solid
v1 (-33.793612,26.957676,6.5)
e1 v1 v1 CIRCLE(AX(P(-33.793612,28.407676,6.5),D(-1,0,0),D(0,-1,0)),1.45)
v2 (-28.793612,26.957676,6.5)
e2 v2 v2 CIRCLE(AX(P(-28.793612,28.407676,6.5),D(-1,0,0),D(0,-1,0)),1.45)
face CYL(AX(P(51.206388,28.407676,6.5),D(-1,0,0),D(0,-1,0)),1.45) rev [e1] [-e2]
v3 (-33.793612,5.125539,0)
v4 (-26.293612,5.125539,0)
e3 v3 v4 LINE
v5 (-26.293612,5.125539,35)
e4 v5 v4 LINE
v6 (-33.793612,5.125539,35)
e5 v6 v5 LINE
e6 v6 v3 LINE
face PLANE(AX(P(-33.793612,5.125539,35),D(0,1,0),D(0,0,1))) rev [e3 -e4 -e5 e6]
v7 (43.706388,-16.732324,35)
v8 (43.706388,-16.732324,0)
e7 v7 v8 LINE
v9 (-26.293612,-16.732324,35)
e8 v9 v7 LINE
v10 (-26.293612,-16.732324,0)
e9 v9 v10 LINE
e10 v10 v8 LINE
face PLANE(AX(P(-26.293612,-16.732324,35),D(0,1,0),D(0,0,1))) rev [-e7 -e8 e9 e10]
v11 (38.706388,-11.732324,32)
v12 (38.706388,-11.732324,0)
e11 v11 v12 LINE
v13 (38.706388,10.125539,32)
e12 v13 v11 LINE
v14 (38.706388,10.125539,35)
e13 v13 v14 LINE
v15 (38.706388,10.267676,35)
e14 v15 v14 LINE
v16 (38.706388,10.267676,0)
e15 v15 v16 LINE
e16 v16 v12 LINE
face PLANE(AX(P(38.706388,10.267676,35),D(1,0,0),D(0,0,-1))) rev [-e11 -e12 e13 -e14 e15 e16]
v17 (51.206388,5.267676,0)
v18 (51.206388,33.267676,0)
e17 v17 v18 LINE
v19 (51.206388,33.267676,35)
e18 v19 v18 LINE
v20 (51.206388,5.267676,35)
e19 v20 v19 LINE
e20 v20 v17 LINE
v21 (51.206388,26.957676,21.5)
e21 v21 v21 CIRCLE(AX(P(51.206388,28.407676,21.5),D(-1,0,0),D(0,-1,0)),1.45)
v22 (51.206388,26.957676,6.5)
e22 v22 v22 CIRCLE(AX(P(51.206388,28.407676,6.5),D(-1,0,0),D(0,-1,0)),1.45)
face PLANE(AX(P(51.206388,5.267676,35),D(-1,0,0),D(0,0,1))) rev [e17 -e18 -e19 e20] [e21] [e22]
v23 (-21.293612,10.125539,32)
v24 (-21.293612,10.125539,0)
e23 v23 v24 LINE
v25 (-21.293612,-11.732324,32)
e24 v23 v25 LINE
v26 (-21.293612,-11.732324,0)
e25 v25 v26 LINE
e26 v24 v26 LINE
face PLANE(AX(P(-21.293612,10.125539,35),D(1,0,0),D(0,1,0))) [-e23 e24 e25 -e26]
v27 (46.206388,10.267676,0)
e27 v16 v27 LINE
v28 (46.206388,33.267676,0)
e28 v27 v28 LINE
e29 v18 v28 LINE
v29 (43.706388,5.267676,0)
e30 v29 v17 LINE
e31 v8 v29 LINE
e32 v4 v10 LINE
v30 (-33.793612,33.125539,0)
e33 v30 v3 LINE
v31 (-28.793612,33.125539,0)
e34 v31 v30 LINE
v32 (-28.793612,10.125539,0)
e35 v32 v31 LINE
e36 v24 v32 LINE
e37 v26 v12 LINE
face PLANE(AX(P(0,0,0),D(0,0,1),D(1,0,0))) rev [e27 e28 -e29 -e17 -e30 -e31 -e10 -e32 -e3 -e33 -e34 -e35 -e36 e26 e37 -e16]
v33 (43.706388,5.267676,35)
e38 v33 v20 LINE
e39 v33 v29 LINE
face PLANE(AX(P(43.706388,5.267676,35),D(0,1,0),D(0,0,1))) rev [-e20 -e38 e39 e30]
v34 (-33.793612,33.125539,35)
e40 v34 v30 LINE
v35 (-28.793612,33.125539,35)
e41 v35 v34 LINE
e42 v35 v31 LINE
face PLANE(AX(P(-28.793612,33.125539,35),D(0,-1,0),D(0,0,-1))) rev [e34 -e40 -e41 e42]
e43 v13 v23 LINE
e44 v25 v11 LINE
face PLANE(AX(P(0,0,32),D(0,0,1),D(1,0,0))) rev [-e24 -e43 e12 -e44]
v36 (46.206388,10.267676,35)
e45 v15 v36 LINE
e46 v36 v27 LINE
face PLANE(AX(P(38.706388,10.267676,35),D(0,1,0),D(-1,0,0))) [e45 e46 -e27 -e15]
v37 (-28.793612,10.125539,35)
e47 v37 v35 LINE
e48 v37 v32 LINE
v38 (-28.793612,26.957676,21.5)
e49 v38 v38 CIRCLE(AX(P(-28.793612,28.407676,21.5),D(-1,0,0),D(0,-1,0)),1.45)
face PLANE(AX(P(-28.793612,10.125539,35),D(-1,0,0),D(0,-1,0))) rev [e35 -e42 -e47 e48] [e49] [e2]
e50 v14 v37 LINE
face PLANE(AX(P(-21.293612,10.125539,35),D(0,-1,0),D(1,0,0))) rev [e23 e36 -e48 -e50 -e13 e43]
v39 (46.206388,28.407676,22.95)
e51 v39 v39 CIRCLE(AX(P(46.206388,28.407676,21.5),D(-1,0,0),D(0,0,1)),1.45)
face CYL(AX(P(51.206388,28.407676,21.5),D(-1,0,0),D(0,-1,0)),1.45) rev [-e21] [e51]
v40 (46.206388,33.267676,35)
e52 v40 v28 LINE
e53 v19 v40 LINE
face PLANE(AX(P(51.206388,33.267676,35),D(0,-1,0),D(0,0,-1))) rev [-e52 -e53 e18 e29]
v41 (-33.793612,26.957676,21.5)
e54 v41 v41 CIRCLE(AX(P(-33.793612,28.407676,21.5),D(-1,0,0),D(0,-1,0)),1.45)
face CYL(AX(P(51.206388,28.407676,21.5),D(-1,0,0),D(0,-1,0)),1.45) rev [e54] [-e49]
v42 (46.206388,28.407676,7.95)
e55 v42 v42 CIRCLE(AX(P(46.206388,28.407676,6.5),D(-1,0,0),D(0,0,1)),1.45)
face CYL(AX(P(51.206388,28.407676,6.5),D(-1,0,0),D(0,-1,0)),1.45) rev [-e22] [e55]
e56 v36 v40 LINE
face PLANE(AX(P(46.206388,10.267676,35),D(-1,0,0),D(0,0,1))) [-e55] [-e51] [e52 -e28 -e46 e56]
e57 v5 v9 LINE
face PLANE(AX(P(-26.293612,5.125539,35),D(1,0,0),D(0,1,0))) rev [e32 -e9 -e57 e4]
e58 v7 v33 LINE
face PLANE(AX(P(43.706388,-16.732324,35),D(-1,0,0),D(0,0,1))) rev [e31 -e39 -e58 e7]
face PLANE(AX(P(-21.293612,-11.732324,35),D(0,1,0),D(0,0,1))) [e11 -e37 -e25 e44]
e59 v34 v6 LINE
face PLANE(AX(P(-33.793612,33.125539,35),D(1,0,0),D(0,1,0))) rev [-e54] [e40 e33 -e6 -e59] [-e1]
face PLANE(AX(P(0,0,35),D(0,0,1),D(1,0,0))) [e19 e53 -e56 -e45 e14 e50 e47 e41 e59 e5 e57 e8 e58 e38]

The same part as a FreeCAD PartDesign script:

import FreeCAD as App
import Part
import Sketcher

V = App.Vector
Q = App.Units.Quantity

doc = App.newDocument("Part")
body = doc.addObject("PartDesign::Body", "Body")

sketch1 = body.newObject("Sketcher::SketchObject", "Sketch")
sketch1.AttachmentSupport = (doc.getObject("XY_Plane"), [""])
sketch1.MapMode = "FlatFace"
sketch1.addGeometry([
    Part.LineSegment(V(-21.293612, 10.125539, 0), V(-28.793612, 10.125539, 0)),
    Part.LineSegment(V(-28.793612, 10.125539, 0), V(-28.793612, 33.125539, 0)),
    Part.LineSegment(V(-28.793612, 33.125539, 0), V(-33.793612, 33.125539, 0)),
    Part.LineSegment(V(-33.793612, 33.125539, 0), V(-33.793612, 5.125539, 0)),
    Part.LineSegment(V(-33.793612, 5.125539, 0), V(-26.293612, 5.125539, 0)),
    Part.LineSegment(V(-26.293612, 5.125539, 0), V(-26.293612, -16.732324, 0)),
    Part.LineSegment(V(-26.293612, -16.732324, 0), V(43.706388, -16.732324, 0)),
    Part.LineSegment(V(43.706388, -16.732324, 0), V(43.706388, 5.267676, 0)),
    Part.LineSegment(V(43.706388, 5.267676, 0), V(51.206388, 5.267676, 0)),
    Part.LineSegment(V(51.206388, 5.267676, 0), V(51.206388, 33.267676, 0)),
    Part.LineSegment(V(51.206388, 33.267676, 0), V(46.206388, 33.267676, 0)),
    Part.LineSegment(V(46.206388, 33.267676, 0), V(46.206388, 10.267676, 0)),
    Part.LineSegment(V(46.206388, 10.267676, 0), V(38.706388, 10.267676, 0)),
    Part.LineSegment(V(38.706388, 10.267676, 0), V(38.706388, -11.732324, 0)),
    Part.LineSegment(V(38.706388, -11.732324, 0), V(-21.293612, -11.732324, 0)),
    Part.LineSegment(V(-21.293612, -11.732324, 0), V(-21.293612, 10.125539, 0)),
], False)
sketch1.addConstraint([
    Sketcher.Constraint("Coincident", 0, 2, 1, 1),
    Sketcher.Constraint("Coincident", 1, 2, 2, 1),
    Sketcher.Constraint("Coincident", 2, 2, 3, 1),
    Sketcher.Constraint("Coincident", 3, 2, 4, 1),
    Sketcher.Constraint("Coincident", 4, 2, 5, 1),
    Sketcher.Constraint("Coincident", 5, 2, 6, 1),
    Sketcher.Constraint("Coincident", 6, 2, 7, 1),
    Sketcher.Constraint("Coincident", 7, 2, 8, 1),
    Sketcher.Constraint("Coincident", 8, 2, 9, 1),
    Sketcher.Constraint("Coincident", 9, 2, 10, 1),
    Sketcher.Constraint("Coincident", 10, 2, 11, 1),
    Sketcher.Constraint("Coincident", 11, 2, 12, 1),
    Sketcher.Constraint("Coincident", 12, 2, 13, 1),
    Sketcher.Constraint("Coincident", 13, 2, 14, 1),
    Sketcher.Constraint("Coincident", 14, 2, 15, 1),
    Sketcher.Constraint("Coincident", 15, 2, 0, 1),
    Sketcher.Constraint("Horizontal", 0),
    Sketcher.Constraint("Vertical", 1),
    Sketcher.Constraint("Horizontal", 2),
    Sketcher.Constraint("Vertical", 3),
    Sketcher.Constraint("Horizontal", 4),
    Sketcher.Constraint("Vertical", 5),
    Sketcher.Constraint("Horizontal", 6),
    Sketcher.Constraint("Vertical", 7),
    Sketcher.Constraint("Horizontal", 8),
    Sketcher.Constraint("Vertical", 9),
    Sketcher.Constraint("Horizontal", 10),
    Sketcher.Constraint("Vertical", 11),
    Sketcher.Constraint("Horizontal", 12),
    Sketcher.Constraint("Vertical", 13),
    Sketcher.Constraint("Horizontal", 14),
    Sketcher.Constraint("Vertical", 15),
    Sketcher.Constraint("Equal", 0, 4),
    Sketcher.Constraint("Equal", 4, 8),
    Sketcher.Constraint("Equal", 2, 10),
    Sketcher.Constraint("Equal", 8, 12),
    Sketcher.Constraint("Equal", 3, 9),
    Sketcher.Constraint("Equal", 1, 11),
    Sketcher.Constraint("Equal", 7, 13),
    Sketcher.Constraint("DistanceX", 2, 2, 2, 1, Q("5 mm")),
    Sketcher.Constraint("DistanceX", 6, 1, 6, 2, Q("70 mm")),
    Sketcher.Constraint("DistanceY", 1, 1, 1, 2, Q("23 mm")),
    Sketcher.Constraint("DistanceY", 3, 2, 3, 1, Q("28 mm")),
    Sketcher.Constraint("DistanceY", 7, 1, 7, 2, Q("22 mm")),
    Sketcher.Constraint("DistanceX", 0, 2, 0, 1, Q("7.5 mm")),
    Sketcher.Constraint("DistanceY", 5, 2, 5, 1, Q("21.857863 mm")),
    Sketcher.Constraint("DistanceX", 0, 2, -1, 1, Q("28.793612 mm")),
    Sketcher.Constraint("DistanceY", -1, 1, 0, 2, Q("10.125539 mm")),
])
pad1 = body.newObject("PartDesign::Pad", "Pad")
pad1.Profile = sketch1
pad1.Length = 35

sketch2 = body.newObject("Sketcher::SketchObject", "Sketch001")
sketch2.AttachmentSupport = (doc.getObject("XY_Plane"), [""])
sketch2.MapMode = "FlatFace"
sketch2.AttachmentOffset = App.Placement(V(0, 0, 35), App.Rotation())
sketch2.addGeometry([
    Part.LineSegment(V(51.206388, 5.267676, 0), V(51.206388, 10.125539, 0)),
    Part.LineSegment(V(51.206388, 10.125539, 0), V(-33.793612, 10.125539, 0)),
    Part.LineSegment(V(-33.793612, 10.125539, 0), V(-33.793612, 5.125539, 0)),
    Part.LineSegment(V(-33.793612, 5.125539, 0), V(-26.293612, 5.125539, 0)),
    Part.LineSegment(V(-26.293612, 5.125539, 0), V(-26.293612, -16.732324, 0)),
    Part.LineSegment(V(-26.293612, -16.732324, 0), V(43.706388, -16.732324, 0)),
    Part.LineSegment(V(43.706388, -16.732324, 0), V(43.706388, 5.267676, 0)),
    Part.LineSegment(V(43.706388, 5.267676, 0), V(51.206388, 5.267676, 0)),
], False)
sketch2.addConstraint([
    Sketcher.Constraint("Coincident", 0, 2, 1, 1),
    Sketcher.Constraint("Coincident", 1, 2, 2, 1),
    Sketcher.Constraint("Coincident", 2, 2, 3, 1),
    Sketcher.Constraint("Coincident", 3, 2, 4, 1),
    Sketcher.Constraint("Coincident", 4, 2, 5, 1),
    Sketcher.Constraint("Coincident", 5, 2, 6, 1),
    Sketcher.Constraint("Coincident", 6, 2, 7, 1),
    Sketcher.Constraint("Coincident", 7, 2, 0, 1),
    Sketcher.Constraint("Vertical", 0),
    Sketcher.Constraint("Horizontal", 1),
    Sketcher.Constraint("Vertical", 2),
    Sketcher.Constraint("Horizontal", 3),
    Sketcher.Constraint("Vertical", 4),
    Sketcher.Constraint("Horizontal", 5),
    Sketcher.Constraint("Vertical", 6),
    Sketcher.Constraint("Horizontal", 7),
    Sketcher.Constraint("Equal", 3, 7),
    Sketcher.Constraint("DistanceX", 1, 2, 1, 1, Q("85 mm")),
    Sketcher.Constraint("DistanceX", 5, 1, 5, 2, Q("70 mm")),
    Sketcher.Constraint("DistanceY", 2, 2, 2, 1, Q("5 mm")),
    Sketcher.Constraint("DistanceY", 6, 1, 6, 2, Q("22 mm")),
    Sketcher.Constraint("DistanceY", 0, 1, 0, 2, Q("4.857863 mm")),
    Sketcher.Constraint("DistanceX", -1, 1, 0, 2, Q("51.206388 mm")),
    Sketcher.Constraint("DistanceY", -1, 1, 0, 2, Q("10.125539 mm")),
])
pad2 = body.newObject("PartDesign::Pad", "Pad001")
pad2.Profile = sketch2
pad2.Length = 3
pad2.Reversed = True

sketch3 = body.newObject("Sketcher::SketchObject", "Sketch002")
sketch3.AttachmentSupport = (doc.getObject("YZ_Plane"), [""])
sketch3.MapMode = "FlatFace"
sketch3.AttachmentOffset = App.Placement(V(0, 0, -33.793612), App.Rotation())
sketch3.addGeometry([
    Part.Circle(V(28.407676, 6.5, 0), V(0, 0, 1), 1.45),
    Part.Circle(V(28.407676, 21.5, 0), V(0, 0, 1), 1.45),
], False)
sketch3.addConstraint([
    Sketcher.Constraint("Equal", 0, 1),
    Sketcher.Constraint("Vertical", 0, 3, 1, 3),
    Sketcher.Constraint("Diameter", 0, Q("2.9 mm")),
    Sketcher.Constraint("DistanceY", 0, 3, 1, 3, Q("15 mm")),
    Sketcher.Constraint("DistanceY", -1, 1, 0, 3, Q("6.5 mm")),
    Sketcher.Constraint("DistanceX", -1, 1, 0, 3, Q("28.407676 mm")),
])
pocket1 = body.newObject("PartDesign::Pocket", "Pocket")
pocket1.Profile = sketch3
pocket1.Type = "ThroughAll"
pocket1.Reversed = True

doc.recompute()
